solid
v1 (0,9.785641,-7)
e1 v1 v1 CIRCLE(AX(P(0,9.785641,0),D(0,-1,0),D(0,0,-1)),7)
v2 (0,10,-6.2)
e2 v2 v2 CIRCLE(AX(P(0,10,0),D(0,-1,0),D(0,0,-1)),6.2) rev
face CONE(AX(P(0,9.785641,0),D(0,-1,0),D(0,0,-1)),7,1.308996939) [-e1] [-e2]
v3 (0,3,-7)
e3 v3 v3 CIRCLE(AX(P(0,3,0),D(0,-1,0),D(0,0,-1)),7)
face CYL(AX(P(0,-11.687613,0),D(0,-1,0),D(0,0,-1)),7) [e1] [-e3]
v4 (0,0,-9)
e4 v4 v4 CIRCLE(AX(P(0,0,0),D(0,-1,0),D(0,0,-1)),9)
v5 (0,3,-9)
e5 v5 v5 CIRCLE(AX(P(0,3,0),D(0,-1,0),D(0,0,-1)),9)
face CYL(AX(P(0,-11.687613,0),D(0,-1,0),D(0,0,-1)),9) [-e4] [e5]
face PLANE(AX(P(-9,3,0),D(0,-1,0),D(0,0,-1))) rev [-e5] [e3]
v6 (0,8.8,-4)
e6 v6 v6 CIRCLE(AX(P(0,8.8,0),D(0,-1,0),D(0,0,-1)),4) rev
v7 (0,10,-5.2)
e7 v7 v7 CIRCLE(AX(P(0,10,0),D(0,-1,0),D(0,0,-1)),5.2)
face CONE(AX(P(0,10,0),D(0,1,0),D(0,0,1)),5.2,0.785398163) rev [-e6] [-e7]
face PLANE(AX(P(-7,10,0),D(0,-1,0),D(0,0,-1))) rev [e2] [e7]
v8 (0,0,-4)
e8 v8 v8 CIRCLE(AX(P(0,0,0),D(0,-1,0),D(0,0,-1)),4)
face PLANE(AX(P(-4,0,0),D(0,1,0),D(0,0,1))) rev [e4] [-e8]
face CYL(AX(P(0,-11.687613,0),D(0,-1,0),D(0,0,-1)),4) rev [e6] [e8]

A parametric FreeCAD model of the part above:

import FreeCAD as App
import Part
import Sketcher

V = App.Vector
Q = App.Units.Quantity


def edges_at(feature, points):
    """Names of the edges that pass closest to the given points."""
    edges = feature.Shape.Edges
    near = lambda p: min(range(len(edges)), key=lambda i: edges[i].distToShape(Part.Vertex(*p))[0])
    return sorted({f"Edge{near(p) + 1}" for p in points})

doc = App.newDocument("Part")
params = doc.addObject("Spreadsheet::Sheet", "Params")
for row, (alias, value) in enumerate([
    ("sketch1_width", "5 mm"),
    ("sketch1_width2", "3 mm"),
    ("sketch1_height", "10 mm"),
    ("revolution_angle", "360 deg"),
    ("chamfer_size", "0.8 mm"),
    ("chamfer_size2", "0.214359 mm"),
    ("chamfer2_size", "1.2 mm"),
], start=1):
    params.set(f"A{row}", alias)
    params.set(f"B{row}", "=" + value)
    params.setAlias(f"B{row}", alias)

body = doc.addObject("PartDesign::Body", "Body")

# Sketch on XY plane
sketch1 = doc.addObject("Sketcher::SketchObject", "Sketch")
body.addObject(sketch1)
sketch1.AttachmentSupport = (doc.XY_Plane, [""])
sketch1.MapMode = "FlatFace"
sketch1.addGeometry([
    Part.LineSegment(V(-9, 0, 0), V(-4, 0, 0)),  # 0
    Part.LineSegment(V(-4, 0, 0), V(-4, 10, 0)),  # 1
    Part.LineSegment(V(-4, 10, 0), V(-7, 10, 0)),  # 2
    Part.LineSegment(V(-7, 10, 0), V(-7, 3, 0)),  # 3
    Part.LineSegment(V(-7, 3, 0), V(-9, 3, 0)),  # 4
    Part.LineSegment(V(-9, 3, 0), V(-9, 0, 0)),  # 5
], False)
sketch1.addConstraint([
    Sketcher.Constraint("Coincident", 0, 2, 1, 1),
    Sketcher.Constraint("Coincident", 1, 2, 2, 1),
    Sketcher.Constraint("Coincident", 2, 2, 3, 1),
    Sketcher.Constraint("Coincident", 3, 2, 4, 1),
    Sketcher.Constraint("Coincident", 4, 2, 5, 1),
    Sketcher.Constraint("Coincident", 5, 2, 0, 1),
    Sketcher.Constraint("Horizontal", 0),
    Sketcher.Constraint("Vertical", 1),
    Sketcher.Constraint("Horizontal", 2),
    Sketcher.Constraint("Vertical", 3),
    Sketcher.Constraint("Horizontal", 4),
    Sketcher.Constraint("Vertical", 5),
    Sketcher.Constraint("PointOnObject", 0, 2, -1),
    Sketcher.Constraint("Equal", 2, 5),
    Sketcher.Constraint("DistanceX", 0, 1, 0, 2, Q("5 mm")),
    Sketcher.Constraint("DistanceX", 2, 2, 2, 1, Q("3 mm")),
    Sketcher.Constraint("DistanceY", 1, 1, 1, 2, Q("10 mm")),
    Sketcher.Constraint("DistanceX", 0, 2, -1, 1, Q("4 mm")),
])
sketch1.setExpression("Constraints[14]", "Params.sketch1_width")
sketch1.setExpression("Constraints[15]", "Params.sketch1_width2")
sketch1.setExpression("Constraints[16]", "Params.sketch1_height")
revolution = doc.addObject("PartDesign::Revolution", "Revolution")
body.addObject(revolution)
revolution.Profile = sketch1
revolution.ReferenceAxis = (sketch1, ["V_Axis"])
revolution.setExpression("Angle", "Params.revolution_angle")
doc.recompute()

chamfer = doc.addObject("PartDesign::Chamfer", "Chamfer")
body.addObject(chamfer)
chamfer.Base = (revolution, edges_at(revolution, [(7, 10, 0)]))
chamfer.ChamferType = "Two distances"
chamfer.setExpression("Size", "Params.chamfer_size")
chamfer.setExpression("Size2", "Params.chamfer_size2")
doc.recompute()

chamfer2 = doc.addObject("PartDesign::Chamfer", "Chamfer001")
body.addObject(chamfer2)
chamfer2.Base = (chamfer, edges_at(chamfer, [(4, 10, 0)]))
chamfer2.setExpression("Size", "Params.chamfer2_size")

doc.recompute()
